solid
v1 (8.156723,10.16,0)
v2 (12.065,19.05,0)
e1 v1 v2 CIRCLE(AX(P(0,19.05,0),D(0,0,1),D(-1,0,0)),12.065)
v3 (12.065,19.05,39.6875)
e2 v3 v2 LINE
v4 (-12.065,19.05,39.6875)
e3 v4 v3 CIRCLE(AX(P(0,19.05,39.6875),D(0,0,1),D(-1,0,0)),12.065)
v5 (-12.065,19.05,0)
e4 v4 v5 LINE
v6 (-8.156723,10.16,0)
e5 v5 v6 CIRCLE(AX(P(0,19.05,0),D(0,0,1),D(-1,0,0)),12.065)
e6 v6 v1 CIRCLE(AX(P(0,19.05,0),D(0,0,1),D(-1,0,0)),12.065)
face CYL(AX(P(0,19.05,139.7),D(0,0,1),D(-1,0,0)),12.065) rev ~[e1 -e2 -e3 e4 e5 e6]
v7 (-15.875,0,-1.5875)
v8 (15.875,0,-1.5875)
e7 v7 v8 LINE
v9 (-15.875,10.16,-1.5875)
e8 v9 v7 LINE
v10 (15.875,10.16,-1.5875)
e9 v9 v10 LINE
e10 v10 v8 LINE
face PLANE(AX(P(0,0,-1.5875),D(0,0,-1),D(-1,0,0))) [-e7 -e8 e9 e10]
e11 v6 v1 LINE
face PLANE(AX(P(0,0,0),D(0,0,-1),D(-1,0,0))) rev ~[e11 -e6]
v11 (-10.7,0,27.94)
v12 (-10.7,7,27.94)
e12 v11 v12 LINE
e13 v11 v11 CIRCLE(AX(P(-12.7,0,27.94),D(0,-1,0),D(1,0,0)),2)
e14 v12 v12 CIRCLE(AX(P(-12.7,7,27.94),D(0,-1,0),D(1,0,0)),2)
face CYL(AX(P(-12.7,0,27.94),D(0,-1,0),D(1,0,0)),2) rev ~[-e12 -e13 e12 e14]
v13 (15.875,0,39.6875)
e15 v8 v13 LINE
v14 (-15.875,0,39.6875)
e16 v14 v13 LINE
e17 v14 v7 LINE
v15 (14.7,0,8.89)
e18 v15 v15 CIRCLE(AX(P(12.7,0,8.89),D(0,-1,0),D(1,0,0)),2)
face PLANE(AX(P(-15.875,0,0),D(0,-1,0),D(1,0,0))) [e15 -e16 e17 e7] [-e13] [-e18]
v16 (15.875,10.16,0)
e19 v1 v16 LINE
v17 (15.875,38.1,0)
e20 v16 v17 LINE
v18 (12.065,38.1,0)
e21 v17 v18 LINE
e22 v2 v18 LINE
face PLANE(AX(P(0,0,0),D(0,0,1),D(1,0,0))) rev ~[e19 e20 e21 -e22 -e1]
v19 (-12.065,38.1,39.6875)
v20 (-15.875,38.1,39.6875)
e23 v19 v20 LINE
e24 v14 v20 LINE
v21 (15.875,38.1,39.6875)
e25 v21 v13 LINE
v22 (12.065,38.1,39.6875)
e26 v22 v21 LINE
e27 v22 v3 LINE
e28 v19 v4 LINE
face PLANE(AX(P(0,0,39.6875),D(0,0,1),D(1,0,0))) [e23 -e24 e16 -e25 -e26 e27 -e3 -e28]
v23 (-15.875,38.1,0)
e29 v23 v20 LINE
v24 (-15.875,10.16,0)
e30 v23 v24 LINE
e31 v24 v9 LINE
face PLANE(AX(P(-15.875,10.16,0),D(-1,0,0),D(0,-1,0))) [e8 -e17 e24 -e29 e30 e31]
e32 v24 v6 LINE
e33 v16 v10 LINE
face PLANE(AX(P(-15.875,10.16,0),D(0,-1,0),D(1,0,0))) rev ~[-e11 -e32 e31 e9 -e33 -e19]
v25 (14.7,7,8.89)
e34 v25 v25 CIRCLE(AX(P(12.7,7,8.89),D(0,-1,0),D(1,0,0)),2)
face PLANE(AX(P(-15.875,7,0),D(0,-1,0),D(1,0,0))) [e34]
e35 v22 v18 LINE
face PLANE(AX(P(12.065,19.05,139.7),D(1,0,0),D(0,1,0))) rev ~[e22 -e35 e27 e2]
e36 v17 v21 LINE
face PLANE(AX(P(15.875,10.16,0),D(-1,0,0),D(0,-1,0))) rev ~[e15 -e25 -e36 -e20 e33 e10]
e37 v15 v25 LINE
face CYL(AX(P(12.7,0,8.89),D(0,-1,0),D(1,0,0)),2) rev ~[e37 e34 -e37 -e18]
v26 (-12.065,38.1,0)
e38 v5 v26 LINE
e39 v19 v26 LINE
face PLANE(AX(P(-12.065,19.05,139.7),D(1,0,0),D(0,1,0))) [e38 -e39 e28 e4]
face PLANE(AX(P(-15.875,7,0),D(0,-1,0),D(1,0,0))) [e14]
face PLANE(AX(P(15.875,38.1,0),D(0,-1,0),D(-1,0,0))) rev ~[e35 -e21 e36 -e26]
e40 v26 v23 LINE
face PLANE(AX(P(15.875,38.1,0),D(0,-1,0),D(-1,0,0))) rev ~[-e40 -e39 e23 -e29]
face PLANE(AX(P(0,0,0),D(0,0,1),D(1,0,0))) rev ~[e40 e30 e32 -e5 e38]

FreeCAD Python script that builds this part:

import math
import FreeCAD as App
import Part
import Sketcher
from FreeCAD import Vector
Q = App.Units.Quantity

doc = App.newDocument("Part")
body = doc.addObject("PartDesign::Body", "Body")

# Sketch on XY plane
sketch1 = doc.addObject("Sketcher::SketchObject", "Sketch")
body.addObject(sketch1)
sketch1.AttachmentSupport = (doc.XY_Plane, [""])
sketch1.MapMode = "FlatFace"
sketch1.addGeometry([
    Part.LineSegment(Vector(-16, 38, 0), Vector(-16, 0, 0)),
    Part.LineSegment(Vector(-16, 0, 0), Vector(16, 0, 0)),
    Part.LineSegment(Vector(16, 0, 0), Vector(16, 38, 0)),
    Part.LineSegment(Vector(16, 38, 0), Vector(-16, 38, 0)),
], False)
sketch1.addConstraint([
    Sketcher.Constraint("Coincident", 0, 2, 1, 1),
    Sketcher.Constraint("Coincident", 1, 2, 2, 1),
    Sketcher.Constraint("Coincident", 2, 2, 3, 1),
    Sketcher.Constraint("Coincident", 3, 2, 0, 1),
    Sketcher.Constraint("Vertical", 0),
    Sketcher.Constraint("Horizontal", 1),
    Sketcher.Constraint("Vertical", 2),
    Sketcher.Constraint("Horizontal", 3),
    Sketcher.Constraint("Symmetric", 0, 2, 1, 2, -1, 1),
    Sketcher.Constraint("DistanceY", 0, 2, 0, 1, Q("1.5 in")),
    Sketcher.Constraint("DistanceX", 1, 1, 1, 2, Q("1.25 in")),
])
pad1 = doc.addObject("PartDesign::Pad", "Pad")
body.addObject(pad1)
pad1.Profile = sketch1
pad1.Length = Q("5.5 in")

# Sketch on XY plane
sketch2 = doc.addObject("Sketcher::SketchObject", "Sketch001")
body.addObject(sketch2)
sketch2.AttachmentSupport = (doc.XY_Plane, [""])
sketch2.MapMode = "FlatFace"
sketch2.AttachmentOffset = App.Placement(Vector(0, 0, 5.5 * 25.4), App.Rotation())
sketch2.addGeometry([
    Part.LineSegment(Vector(-12, 38, 0), Vector(-12, 19, 0)),
    Part.ArcOfCircle(Part.Circle(Vector(0, 19, 0), Vector(0, 0, 1), 12), math.radians(180), math.radians(360)),
    Part.LineSegment(Vector(12, 19, 0), Vector(12, 38, 0)),
    Part.LineSegment(Vector(12, 38, 0), Vector(-12, 38, 0)),
], False)
sketch2.addConstraint([
    Sketcher.Constraint("Tangent", 0, 2, 1, 1),
    Sketcher.Constraint("Tangent", 1, 2, 2, 1),
    Sketcher.Constraint("Coincident", 2, 2, 3, 1),
    Sketcher.Constraint("Coincident", 3, 2, 0, 1),
    Sketcher.Constraint("Vertical", 0),
    Sketcher.Constraint("Vertical", 2),
    Sketcher.Constraint("Horizontal", 3),
    Sketcher.Constraint("PointOnObject", 1, 3, -2),
    Sketcher.Constraint("Radius", 1, Q("0.475 in")),
    Sketcher.Constraint("DistanceY", 0, 2, 0, 1, Q("0.75 in")),
    Sketcher.Constraint("DistanceY", -1, 1, 1, 3, Q("0.75 in")),
])
pocket1 = doc.addObject("PartDesign::Pocket", "Pocket")
body.addObject(pocket1)
pocket1.Profile = sketch2
pocket1.Type = "ThroughAll"

# Sketch on XZ plane
sketch3 = doc.addObject("Sketcher::SketchObject", "Sketch002")
body.addObject(sketch3)
sketch3.AttachmentSupport = (doc.XZ_Plane, [""])
sketch3.MapMode = "FlatFace"
sketch3.addGeometry([
    Part.Circle(Vector(12.7, 8.9, 0), Vector(0, 0, 1), 2),
    Part.Circle(Vector(-12.7, 130.8, 0), Vector(0, 0, 1), 2),
    Part.Circle(Vector(-12.7, 27.9, 0), Vector(0, 0, 1), 2),
], False)
sketch3.addConstraint([
    Sketcher.Constraint("Equal", 0, 1),
    Sketcher.Constraint("Equal", 1, 2),
    Sketcher.Constraint("Vertical", 1, 3, 2, 3),
    Sketcher.Constraint("DistanceX", -1, 1, 0, 3, Q("0.5 in")),
    Sketcher.Constraint("DistanceX", 1, 3, -1, 1, Q("0.5 in")),
    Sketcher.Constraint("DistanceY", -1, 1, 2, 3, Q("1.1 in")),
    Sketcher.Constraint("Diameter", 0, 4.0),
    Sketcher.Constraint("DistanceY", -1, 1, 0, 3, Q("0.35 in")),
    Sketcher.Constraint("DistanceY", 0, 3, 1, 3, Q("4.8 in")),
])
pocket2 = doc.addObject("PartDesign::Pocket", "Pocket001")
body.addObject(pocket2)
pocket2.Profile = sketch3
pocket2.Length = Q("0.2755906 in")

# Sketch on XY plane
sketch4 = doc.addObject("Sketcher::SketchObject", "Sketch003")
body.addObject(sketch4)
sketch4.AttachmentSupport = (doc.XY_Plane, [""])
sketch4.MapMode = "FlatFace"
sketch4.AttachmentOffset = App.Placement(Vector(0, 0, 5.5 * 25.4), App.Rotation())
sketch4.addGeometry([
    Part.LineSegment(Vector(-16, 19, 0), Vector(-16, 0, 0)),
    Part.LineSegment(Vector(-16, 0, 0), Vector(16, 0, 0)),
    Part.LineSegment(Vector(16, 0, 0), Vector(16, 19, 0)),
    Part.LineSegment(Vector(16, 19, 0), Vector(-16, 19, 0)),
], False)
sketch4.addConstraint([
    Sketcher.Constraint("Coincident", 0, 2, 1, 1),
    Sketcher.Constraint("Coincident", 1, 2, 2, 1),
    Sketcher.Constraint("Coincident", 2, 2, 3, 1),
    Sketcher.Constraint("Coincident", 3, 2, 0, 1),
    Sketcher.Constraint("Vertical", 0),
    Sketcher.Constraint("Horizontal", 1),
    Sketcher.Constraint("Vertical", 2),
    Sketcher.Constraint("Horizontal", 3),
    Sketcher.Constraint("Symmetric", 0, 2, 1, 2, -1, 1),
    Sketcher.Constraint("DistanceY", 0, 2, 0, 1, Q("0.75 in")),
    Sketcher.Constraint("DistanceX", 1, 1, 1, 2, Q("1.25 in")),
])
pad2 = doc.addObject("PartDesign::Pad", "Pad001")
body.addObject(pad2)
pad2.Profile = sketch4
pad2.Length = Q("0.0625 in")

# Sketch on XY plane
sketch5 = doc.addObject("Sketcher::SketchObject", "Sketch004")
body.addObject(sketch5)
sketch5.AttachmentSupport = (doc.XY_Plane, [""])
sketch5.MapMode = "FlatFace"
sketch5.addGeometry([
    Part.LineSegment(Vector(16, 0, 0), Vector(-16, 0, 0)),
    Part.LineSegment(Vector(-16, 0, 0), Vector(-16, 10, 0)),
    Part.LineSegment(Vector(-16, 10, 0), Vector(16, 10, 0)),
    Part.LineSegment(Vector(16, 10, 0), Vector(16, 0, 0)),
], False)
sketch5.addConstraint([
    Sketcher.Constraint("Coincident", 0, 2, 1, 1),
    Sketcher.Constraint("Coincident", 1, 2, 2, 1),
    Sketcher.Constraint("Coincident", 2, 2, 3, 1),
    Sketcher.Constraint("Coincident", 3, 2, 0, 1),
    Sketcher.Constraint("Horizontal", 0),
    Sketcher.Constraint("Vertical", 1),
    Sketcher.Constraint("Horizontal", 2),
    Sketcher.Constraint("Vertical", 3),
    Sketcher.Constraint("Symmetric", 0, 2, 3, 2, -1, 1),
    Sketcher.Constraint("DistanceY", 1, 1, 1, 2, Q("0.4 in")),
    Sketcher.Constraint("DistanceX", 0, 2, 0, 1, Q("1.25 in")),
])
pad3 = doc.addObject("PartDesign::Pad", "Pad002")
body.addObject(pad3)
pad3.Profile = sketch5
pad3.Length = Q("0.0625 in")
pad3.Reversed = True

# Sketch on XY plane
sketch6 = doc.addObject("Sketcher::SketchObject", "Sketch005")
body.addObject(sketch6)
sketch6.AttachmentSupport = (doc.XY_Plane, [""])
sketch6.MapMode = "FlatFace"
sketch6.AttachmentOffset = App.Placement(Vector(0, 0, 5.5625 * 25.4), App.Rotation())
sketch6.addGeometry([
    Part.LineSegment(Vector(16, 38, 0), Vector(-16, 38, 0)),
    Part.LineSegment(Vector(-16, 38, 0), Vector(-16, 0, 0)),
    Part.LineSegment(Vector(-16, 0, 0), Vector(16, 0, 0)),
    Part.LineSegment(Vector(16, 0, 0), Vector(16, 38, 0)),
], False)
sketch6.addConstraint([
    Sketcher.Constraint("Coincident", 0, 2, 1, 1),
    Sketcher.Constraint("Coincident", 1, 2, 2, 1),
    Sketcher.Constraint("Coincident", 2, 2, 3, 1),
    Sketcher.Constraint("Coincident", 3, 2, 0, 1),
    Sketcher.Constraint("Horizontal", 0),
    Sketcher.Constraint("Vertical", 1),
    Sketcher.Constraint("Horizontal", 2),
    Sketcher.Constraint("Vertical", 3),
    Sketcher.Constraint("Symmetric", 1, 2, 2, 2, -1, 1),
    Sketcher.Constraint("DistanceY", 1, 2, 1, 1, Q("1.5 in")),
    Sketcher.Constraint("DistanceX", 0, 2, 0, 1, Q("1.25 in")),
])
pocket3 = doc.addObject("PartDesign::Pocket", "Pocket002")
body.addObject(pocket3)
pocket3.Profile = sketch6
pocket3.Length = Q("4 in")

doc.recompute()
